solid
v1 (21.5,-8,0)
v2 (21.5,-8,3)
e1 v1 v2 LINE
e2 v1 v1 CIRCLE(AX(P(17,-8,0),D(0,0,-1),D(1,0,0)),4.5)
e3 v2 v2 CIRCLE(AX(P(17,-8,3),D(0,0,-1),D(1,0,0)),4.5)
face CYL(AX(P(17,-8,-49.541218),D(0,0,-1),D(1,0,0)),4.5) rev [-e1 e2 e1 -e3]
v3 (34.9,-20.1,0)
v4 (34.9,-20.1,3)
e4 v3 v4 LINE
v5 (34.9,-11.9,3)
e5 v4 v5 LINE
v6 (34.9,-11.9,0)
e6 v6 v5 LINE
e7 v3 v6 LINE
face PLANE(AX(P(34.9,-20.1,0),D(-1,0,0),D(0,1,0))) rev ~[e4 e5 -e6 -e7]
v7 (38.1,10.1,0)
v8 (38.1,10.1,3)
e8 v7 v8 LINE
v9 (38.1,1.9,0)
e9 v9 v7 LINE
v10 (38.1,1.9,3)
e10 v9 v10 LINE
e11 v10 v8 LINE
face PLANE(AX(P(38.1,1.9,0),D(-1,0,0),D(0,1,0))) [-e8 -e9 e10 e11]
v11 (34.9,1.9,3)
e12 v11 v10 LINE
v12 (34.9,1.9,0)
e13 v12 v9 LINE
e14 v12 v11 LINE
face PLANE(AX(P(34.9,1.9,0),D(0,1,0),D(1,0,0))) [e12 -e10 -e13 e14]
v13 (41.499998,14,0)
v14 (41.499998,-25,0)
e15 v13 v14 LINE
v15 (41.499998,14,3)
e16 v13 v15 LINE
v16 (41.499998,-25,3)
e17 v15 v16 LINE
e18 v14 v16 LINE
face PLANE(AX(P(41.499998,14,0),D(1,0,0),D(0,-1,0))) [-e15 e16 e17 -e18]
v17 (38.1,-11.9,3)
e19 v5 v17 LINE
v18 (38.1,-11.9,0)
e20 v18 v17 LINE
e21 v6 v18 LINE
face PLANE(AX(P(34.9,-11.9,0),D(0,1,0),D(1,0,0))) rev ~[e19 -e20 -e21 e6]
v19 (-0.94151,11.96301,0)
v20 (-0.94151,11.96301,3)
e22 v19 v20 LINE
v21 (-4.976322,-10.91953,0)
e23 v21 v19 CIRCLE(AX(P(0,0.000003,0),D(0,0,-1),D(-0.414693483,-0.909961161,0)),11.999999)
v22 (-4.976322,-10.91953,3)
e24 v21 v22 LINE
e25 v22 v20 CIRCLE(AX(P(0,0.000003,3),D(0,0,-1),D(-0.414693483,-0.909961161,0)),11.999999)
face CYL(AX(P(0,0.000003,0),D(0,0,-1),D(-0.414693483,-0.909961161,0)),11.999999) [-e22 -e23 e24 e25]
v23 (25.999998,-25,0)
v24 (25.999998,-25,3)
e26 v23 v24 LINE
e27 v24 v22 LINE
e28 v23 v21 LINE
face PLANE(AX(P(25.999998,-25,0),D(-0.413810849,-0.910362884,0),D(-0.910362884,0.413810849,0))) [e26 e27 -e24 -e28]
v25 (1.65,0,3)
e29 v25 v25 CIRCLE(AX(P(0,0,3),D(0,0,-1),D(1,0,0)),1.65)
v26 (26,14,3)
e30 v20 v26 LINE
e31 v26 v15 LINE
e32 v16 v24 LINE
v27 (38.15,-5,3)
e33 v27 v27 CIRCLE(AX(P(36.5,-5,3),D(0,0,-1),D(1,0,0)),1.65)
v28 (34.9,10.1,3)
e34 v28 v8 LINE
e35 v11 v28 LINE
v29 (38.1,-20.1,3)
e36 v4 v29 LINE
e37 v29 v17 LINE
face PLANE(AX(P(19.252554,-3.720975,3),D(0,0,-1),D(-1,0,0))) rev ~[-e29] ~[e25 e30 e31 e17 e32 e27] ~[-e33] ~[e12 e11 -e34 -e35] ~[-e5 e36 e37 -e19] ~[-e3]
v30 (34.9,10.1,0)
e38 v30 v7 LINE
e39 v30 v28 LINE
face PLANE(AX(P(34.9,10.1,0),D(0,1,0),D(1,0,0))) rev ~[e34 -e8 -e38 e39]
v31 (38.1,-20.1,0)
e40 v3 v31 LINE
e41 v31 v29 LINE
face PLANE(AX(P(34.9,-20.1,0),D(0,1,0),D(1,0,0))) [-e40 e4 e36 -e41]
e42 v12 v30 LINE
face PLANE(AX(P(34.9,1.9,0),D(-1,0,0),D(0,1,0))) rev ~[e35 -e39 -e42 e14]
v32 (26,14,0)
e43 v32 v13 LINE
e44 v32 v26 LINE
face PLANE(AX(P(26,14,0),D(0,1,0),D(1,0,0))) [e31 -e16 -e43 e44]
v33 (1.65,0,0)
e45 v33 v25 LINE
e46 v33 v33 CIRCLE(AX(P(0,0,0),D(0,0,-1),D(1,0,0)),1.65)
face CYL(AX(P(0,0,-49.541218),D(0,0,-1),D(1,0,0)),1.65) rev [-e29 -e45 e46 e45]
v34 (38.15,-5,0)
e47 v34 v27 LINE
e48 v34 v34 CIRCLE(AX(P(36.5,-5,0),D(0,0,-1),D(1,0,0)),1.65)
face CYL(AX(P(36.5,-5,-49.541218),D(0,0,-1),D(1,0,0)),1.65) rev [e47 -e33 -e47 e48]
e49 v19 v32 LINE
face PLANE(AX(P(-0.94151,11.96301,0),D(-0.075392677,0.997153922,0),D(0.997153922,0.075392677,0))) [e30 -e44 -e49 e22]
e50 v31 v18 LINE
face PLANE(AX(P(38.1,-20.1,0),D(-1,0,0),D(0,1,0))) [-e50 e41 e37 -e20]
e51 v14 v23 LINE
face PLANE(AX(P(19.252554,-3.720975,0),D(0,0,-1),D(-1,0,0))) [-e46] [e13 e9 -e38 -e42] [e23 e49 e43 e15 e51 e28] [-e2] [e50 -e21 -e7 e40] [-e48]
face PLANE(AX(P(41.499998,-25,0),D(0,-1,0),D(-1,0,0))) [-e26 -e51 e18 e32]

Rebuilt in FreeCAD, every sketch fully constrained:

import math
import FreeCAD as App
import Part
import Sketcher
from FreeCAD import Vector
Q = App.Units.Quantity

doc = App.newDocument("Part")
body = doc.addObject("PartDesign::Body", "Body")

# Sketch on XY plane
sketch1 = body.newObject("Sketcher::SketchObject", "Sketch")
sketch1.AttachmentSupport = (doc.getObject("XY_Plane"), [""])
sketch1.MapMode = "FlatFace"
sketch1.addGeometry(Part.LineSegment(Vector(25.999998, -25, 0), Vector(41.499998, -25, 0)), False)
sketch1.addGeometry(Part.LineSegment(Vector(41.499998, -25, 0), Vector(41.499998, 14, 0)), False)
sketch1.addGeometry(Part.LineSegment(Vector(41.499998, 14, 0), Vector(26, 14, 0)), False)
sketch1.addGeometry(Part.LineSegment(Vector(26, 14, 0), Vector(-0.94151, 11.96301, 0)), False)
sketch1.addGeometry(Part.ArcOfCircle(Part.Circle(Vector(0, 0.000003, 0), Vector(0, 0, 1), 11.999999), math.radians(94.500003), math.radians(245.499985)), False)
sketch1.addGeometry(Part.LineSegment(Vector(-4.976322, -10.91953, 0), Vector(25.999998, -25, 0)), False)
sketch1.addGeometry(Part.LineSegment(Vector(34.9, -20.1, 0), Vector(34.9, -11.9, 0)), False)
sketch1.addGeometry(Part.LineSegment(Vector(34.9, -11.9, 0), Vector(38.1, -11.9, 0)), False)
sketch1.addGeometry(Part.LineSegment(Vector(38.1, -11.9, 0), Vector(38.1, -20.1, 0)), False)
sketch1.addGeometry(Part.LineSegment(Vector(38.1, -20.1, 0), Vector(34.9, -20.1, 0)), False)
sketch1.addGeometry(Part.LineSegment(Vector(34.9, 1.9, 0), Vector(34.9, 10.1, 0)), False)
sketch1.addGeometry(Part.LineSegment(Vector(34.9, 10.1, 0), Vector(38.1, 10.1, 0)), False)
sketch1.addGeometry(Part.LineSegment(Vector(38.1, 10.1, 0), Vector(38.1, 1.9, 0)), False)
sketch1.addGeometry(Part.LineSegment(Vector(38.1, 1.9, 0), Vector(34.9, 1.9, 0)), False)
sketch1.addConstraint(Sketcher.Constraint("Coincident", 0, 2, 1, 1))
sketch1.addConstraint(Sketcher.Constraint("Coincident", 1, 2, 2, 1))
sketch1.addConstraint(Sketcher.Constraint("Coincident", 2, 2, 3, 1))
sketch1.addConstraint(Sketcher.Constraint("Coincident", 3, 2, 4, 1))
sketch1.addConstraint(Sketcher.Constraint("Coincident", 4, 2, 5, 1))
sketch1.addConstraint(Sketcher.Constraint("Coincident", 5, 2, 0, 1))
sketch1.addConstraint(Sketcher.Constraint("Coincident", 6, 2, 7, 1))
sketch1.addConstraint(Sketcher.Constraint("Coincident", 7, 2, 8, 1))
sketch1.addConstraint(Sketcher.Constraint("Coincident", 8, 2, 9, 1))
sketch1.addConstraint(Sketcher.Constraint("Coincident", 9, 2, 6, 1))
sketch1.addConstraint(Sketcher.Constraint("Coincident", 10, 2, 11, 1))
sketch1.addConstraint(Sketcher.Constraint("Coincident", 11, 2, 12, 1))
sketch1.addConstraint(Sketcher.Constraint("Coincident", 12, 2, 13, 1))
sketch1.addConstraint(Sketcher.Constraint("Coincident", 13, 2, 10, 1))
sketch1.addConstraint(Sketcher.Constraint("Horizontal", 0))
sketch1.addConstraint(Sketcher.Constraint("Vertical", 1))
sketch1.addConstraint(Sketcher.Constraint("Horizontal", 2))
sketch1.addConstraint(Sketcher.Constraint("Vertical", 6))
sketch1.addConstraint(Sketcher.Constraint("Horizontal", 7))
sketch1.addConstraint(Sketcher.Constraint("Vertical", 8))
sketch1.addConstraint(Sketcher.Constraint("Horizontal", 9))
sketch1.addConstraint(Sketcher.Constraint("Vertical", 10))
sketch1.addConstraint(Sketcher.Constraint("Horizontal", 11))
sketch1.addConstraint(Sketcher.Constraint("Vertical", 12))
sketch1.addConstraint(Sketcher.Constraint("Horizontal", 13))
sketch1.addConstraint(Sketcher.Constraint("Coincident", 4, 3, -1, 1))
sketch1.addConstraint(Sketcher.Constraint("Vertical", 2, 2, 5, 2))
sketch1.addConstraint(Sketcher.Constraint("Vertical", 9, 2, 10, 2))
sketch1.addConstraint(Sketcher.Constraint("Vertical", 8, 2, 11, 2))
sketch1.addConstraint(Sketcher.Constraint("Equal", 8, 10))
sketch1.addConstraint(Sketcher.Constraint("Radius", 4, Q("11.999999 mm")))
sketch1.addConstraint(Sketcher.Constraint("DistanceY", 1, 1, 1, 2, Q("39 mm")))
sketch1.addConstraint(Sketcher.Constraint("DistanceX", 0, 1, 0, 2, Q("15.5 mm")))
sketch1.addConstraint(Sketcher.Constraint("DistanceX", 7, 1, 7, 2, Q("3.2 mm")))
sketch1.addConstraint(Sketcher.Constraint("DistanceY", 6, 1, 6, 2, Q("8.2 mm")))
sketch1.addConstraint(Sketcher.Constraint("DistanceY", 0, 2, -1, 1, Q("25 mm")))
sketch1.addConstraint(Sketcher.Constraint("DistanceX", -1, 1, 2, 2, Q("26 mm")))
sketch1.addConstraint(Sketcher.Constraint("DistanceY", 6, 2, 10, 2, Q("22 mm")))
sketch1.addConstraint(Sketcher.Constraint("DistanceX", -1, 1, 6, 2, Q("34.9 mm")))
sketch1.addConstraint(Sketcher.Constraint("DistanceY", 6, 2, -1, 1, Q("11.9 mm")))
sketch1.addConstraint(Sketcher.Constraint("DistanceX", 3, 2, -1, 1, Q("0.94151 mm")))
sketch1.addConstraint(Sketcher.Constraint("DistanceX", 4, 2, -1, 1, Q("4.976322 mm")))
pad1 = body.newObject("PartDesign::Pad", "Pad")
pad1.Profile = sketch1
pad1.Length = 3

# Sketch on XY plane
sketch2 = body.newObject("Sketcher::SketchObject", "Sketch001")
sketch2.AttachmentSupport = (doc.getObject("XY_Plane"), [""])
sketch2.MapMode = "FlatFace"
sketch2.addGeometry(Part.Circle(Vector(17, -8, 0), Vector(0, 0, 1), 4.5), False)
sketch2.addGeometry(Part.Circle(Vector(0, 0, 0), Vector(0, 0, 1), 1.65), False)
sketch2.addGeometry(Part.Circle(Vector(36.5, -5, 0), Vector(0, 0, 1), 1.65), False)
sketch2.addConstraint(Sketcher.Constraint("Coincident", 1, 3, -1, 1))
sketch2.addConstraint(Sketcher.Constraint("Equal", 1, 2))
sketch2.addConstraint(Sketcher.Constraint("Diameter", 0, Q("9 mm")))
sketch2.addConstraint(Sketcher.Constraint("Diameter", 1, Q("3.3 mm")))
sketch2.addConstraint(Sketcher.Constraint("DistanceX", -1, 1, 0, 3, Q("17 mm")))
sketch2.addConstraint(Sketcher.Constraint("DistanceY", 0, 3, -1, 1, Q("8 mm")))
sketch2.addConstraint(Sketcher.Constraint("DistanceY", 2, 3, -1, 1, Q("5 mm")))
sketch2.addConstraint(Sketcher.Constraint("DistanceX", -1, 1, 2, 3, Q("36.5 mm")))
pocket1 = body.newObject("PartDesign::Pocket", "Pocket")
pocket1.Profile = sketch2
pocket1.Type = "ThroughAll"
pocket1.Midplane = True

doc.recompute()
